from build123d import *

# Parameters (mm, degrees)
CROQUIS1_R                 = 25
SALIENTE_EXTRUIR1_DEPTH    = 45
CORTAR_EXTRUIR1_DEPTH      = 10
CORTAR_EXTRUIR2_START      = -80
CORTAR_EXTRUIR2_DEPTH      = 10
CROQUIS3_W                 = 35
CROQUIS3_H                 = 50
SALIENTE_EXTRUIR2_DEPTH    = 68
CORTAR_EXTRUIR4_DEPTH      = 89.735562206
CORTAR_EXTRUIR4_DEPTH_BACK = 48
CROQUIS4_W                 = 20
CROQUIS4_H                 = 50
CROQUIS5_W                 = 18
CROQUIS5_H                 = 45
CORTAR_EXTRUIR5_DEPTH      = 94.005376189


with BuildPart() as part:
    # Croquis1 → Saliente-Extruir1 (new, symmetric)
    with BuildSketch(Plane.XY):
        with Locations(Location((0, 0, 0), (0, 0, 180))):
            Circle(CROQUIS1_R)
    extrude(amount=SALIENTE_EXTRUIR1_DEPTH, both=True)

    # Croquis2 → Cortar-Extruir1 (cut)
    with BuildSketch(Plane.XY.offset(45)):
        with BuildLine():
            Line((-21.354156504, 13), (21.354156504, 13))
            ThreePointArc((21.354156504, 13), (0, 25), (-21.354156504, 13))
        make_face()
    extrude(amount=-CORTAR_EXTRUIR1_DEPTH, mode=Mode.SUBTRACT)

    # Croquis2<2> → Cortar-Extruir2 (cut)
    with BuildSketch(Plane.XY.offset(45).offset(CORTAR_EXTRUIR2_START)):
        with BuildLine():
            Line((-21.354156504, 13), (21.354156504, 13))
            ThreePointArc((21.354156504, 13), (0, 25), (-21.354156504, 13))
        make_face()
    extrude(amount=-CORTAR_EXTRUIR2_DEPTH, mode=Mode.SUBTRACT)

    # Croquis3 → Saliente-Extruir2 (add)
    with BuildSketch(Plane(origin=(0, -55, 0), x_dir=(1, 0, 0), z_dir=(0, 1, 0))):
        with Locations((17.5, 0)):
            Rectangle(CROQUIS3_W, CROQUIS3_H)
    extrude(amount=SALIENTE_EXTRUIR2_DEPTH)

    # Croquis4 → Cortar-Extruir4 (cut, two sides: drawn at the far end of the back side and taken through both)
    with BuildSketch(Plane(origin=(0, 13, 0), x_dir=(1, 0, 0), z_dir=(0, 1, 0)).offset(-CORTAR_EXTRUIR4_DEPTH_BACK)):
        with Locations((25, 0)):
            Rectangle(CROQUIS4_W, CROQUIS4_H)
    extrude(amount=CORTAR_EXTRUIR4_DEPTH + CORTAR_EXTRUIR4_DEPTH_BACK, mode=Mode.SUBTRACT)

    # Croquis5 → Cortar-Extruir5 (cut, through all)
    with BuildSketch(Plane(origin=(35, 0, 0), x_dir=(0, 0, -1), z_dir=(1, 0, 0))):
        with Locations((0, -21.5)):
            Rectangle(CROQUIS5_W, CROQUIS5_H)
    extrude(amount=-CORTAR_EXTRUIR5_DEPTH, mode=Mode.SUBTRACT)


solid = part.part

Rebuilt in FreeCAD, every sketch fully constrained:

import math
import FreeCAD as App
import Part
import Sketcher
Q = App.Units.Quantity


def add_polygon(sketch, points):
    """Adds a closed chain of lines whose ends are joined by coincident constraints."""
    first, n = sketch.GeometryCount, len(points)
    for a, b in zip(points, points[1:] + points[:1]):
        sketch.addGeometry(Part.LineSegment(App.Vector(*a, 0), App.Vector(*b, 0)), False)
    for i in range(n):
        sketch.addConstraint(Sketcher.Constraint("Coincident", first + i, 2, first + (i + 1) % n, 1))

doc = App.newDocument("Part")
body = doc.addObject("PartDesign::Body", "Body")

sketch1 = body.newObject("Sketcher::SketchObject", "Sketch")
sketch1.AttachmentSupport = (doc.getObject("XY_Plane"), [""])
sketch1.MapMode = "FlatFace"
sketch1.addGeometry(Part.Circle(App.Vector(0, 0, 0), App.Vector(0, 0, 1), 25), False)
sketch1.addConstraint([
    Sketcher.Constraint("Coincident", 0, 3, -1, 1),
    Sketcher.Constraint("Diameter", 0, Q("50 mm")),
])
pad1 = body.newObject("PartDesign::Pad", "Pad")
pad1.Profile = sketch1
pad1.Length = 90
pad1.Midplane = True

sketch2 = body.newObject("Sketcher::SketchObject", "Sketch001")
sketch2.AttachmentSupport = (doc.getObject("XY_Plane"), [""])
sketch2.MapMode = "FlatFace"
sketch2.AttachmentOffset = App.Placement(App.Vector(0, 0, 45), App.Rotation())
sketch2.addGeometry([
    Part.LineSegment(App.Vector(-21, 13, 0), App.Vector(21, 13, 0)),
    Part.ArcOfCircle(Part.Circle(App.Vector(0, 0, 0), App.Vector(0, 0, 1), 25), math.radians(31), math.radians(149)),
], False)
sketch2.addConstraint([
    Sketcher.Constraint("Coincident", 0, 1, 1, 2),
    Sketcher.Constraint("Coincident", 1, 1, 0, 2),
    Sketcher.Constraint("Horizontal", 0),
    Sketcher.Constraint("Coincident", 1, 3, -1, 1),
    Sketcher.Constraint("Radius", 1, Q("25 mm")),
    Sketcher.Constraint("DistanceY", -1, 1, 0, 1, Q("13 mm")),
])
pocket1 = body.newObject("PartDesign::Pocket", "Pocket")
pocket1.Profile = sketch2
pocket1.Length = 10

sketch3 = body.newObject("Sketcher::SketchObject", "Sketch002")
sketch3.AttachmentSupport = (doc.getObject("XY_Plane"), [""])
sketch3.MapMode = "FlatFace"
sketch3.AttachmentOffset = App.Placement(App.Vector(0, 0, -35), App.Rotation())
sketch3.addGeometry([
    Part.LineSegment(App.Vector(-21, 13, 0), App.Vector(21, 13, 0)),
    Part.ArcOfCircle(Part.Circle(App.Vector(0, 0, 0), App.Vector(0, 0, 1), 25), math.radians(31), math.radians(149)),
], False)
sketch3.addConstraint([
    Sketcher.Constraint("Coincident", 0, 1, 1, 2),
    Sketcher.Constraint("Coincident", 1, 1, 0, 2),
    Sketcher.Constraint("Horizontal", 0),
    Sketcher.Constraint("Coincident", 1, 3, -1, 1),
    Sketcher.Constraint("Radius", 1, Q("25 mm")),
    Sketcher.Constraint("DistanceY", -1, 1, 0, 1, Q("13 mm")),
])
pocket2 = body.newObject("PartDesign::Pocket", "Pocket001")
pocket2.Profile = sketch3
pocket2.Length = 10

sketch4 = body.newObject("Sketcher::SketchObject", "Sketch003")
sketch4.AttachmentSupport = (doc.getObject("XZ_Plane"), [""])
sketch4.MapMode = "FlatFace"
sketch4.AttachmentOffset = App.Placement(App.Vector(0, 0, 55), App.Rotation())
add_polygon(sketch4, [(0, -25), (0, 25), (35, 25), (35, -25)])
sketch4.addConstraint([
    Sketcher.Constraint("Vertical", 0),
    Sketcher.Constraint("Horizontal", 1),
    Sketcher.Constraint("Vertical", 2),
    Sketcher.Constraint("Horizontal", 3),
    Sketcher.Constraint("Symmetric", 0, 2, 3, 2, -1, 1),
    Sketcher.Constraint("DistanceX", 1, 1, 1, 2, Q("35 mm")),
    Sketcher.Constraint("DistanceY", 0, 1, 0, 2, Q("50 mm")),
])
pad2 = body.newObject("PartDesign::Pad", "Pad001")
pad2.Profile = sketch4
pad2.Length = 68
pad2.Reversed = True

sketch5 = body.newObject("Sketcher::SketchObject", "Sketch004")
sketch5.AttachmentSupport = (doc.getObject("XZ_Plane"), [""])
sketch5.MapMode = "FlatFace"
sketch5.AttachmentOffset = App.Placement(App.Vector(0, 0, -13), App.Rotation())
add_polygon(sketch5, [(15, -25), (15, 25), (35, 25), (35, -25)])
sketch5.addConstraint([
    Sketcher.Constraint("Vertical", 0),
    Sketcher.Constraint("Horizontal", 1),
    Sketcher.Constraint("Vertical", 2),
    Sketcher.Constraint("Horizontal", 3),
    Sketcher.Constraint("DistanceX", 1, 1, 1, 2, Q("20 mm")),
    Sketcher.Constraint("DistanceY", 0, 1, 0, 2, Q("50 mm")),
    Sketcher.Constraint("DistanceX", -1, 1, 0, 2, Q("15 mm")),
    Sketcher.Constraint("DistanceY", -1, 1, 0, 2, Q("25 mm")),
])
pocket3 = body.newObject("PartDesign::Pocket", "Pocket002")
pocket3.Profile = sketch5
pocket3.Type = "TwoLengths"
pocket3.Length = 89.735562
pocket3.Length2 = 48

sketch6 = body.newObject("Sketcher::SketchObject", "Sketch005")
sketch6.AttachmentSupport = (doc.getObject("YZ_Plane"), [""])
sketch6.MapMode = "FlatFace"
sketch6.AttachmentOffset = App.Placement(App.Vector(0, 0, 35), App.Rotation())
add_polygon(sketch6, [(1, 9), (-44, 9), (-44, -9), (1, -9)])
sketch6.addConstraint([
    Sketcher.Constraint("Horizontal", 0),
    Sketcher.Constraint("Vertical", 1),
    Sketcher.Constraint("Horizontal", 2),
    Sketcher.Constraint("Vertical", 3),
    Sketcher.Constraint("DistanceX", 0, 2, 0, 1, Q("45 mm")),
    Sketcher.Constraint("DistanceY", 1, 2, 1, 1, Q("18 mm")),
    Sketcher.Constraint("DistanceX", 0, 2, -1, 1, Q("44 mm")),
    Sketcher.Constraint("DistanceY", -1, 1, 0, 2, Q("9 mm")),
])
pocket4 = body.newObject("PartDesign::Pocket", "Pocket003")
pocket4.Profile = sketch6
pocket4.Type = "ThroughAll"

doc.recompute()
